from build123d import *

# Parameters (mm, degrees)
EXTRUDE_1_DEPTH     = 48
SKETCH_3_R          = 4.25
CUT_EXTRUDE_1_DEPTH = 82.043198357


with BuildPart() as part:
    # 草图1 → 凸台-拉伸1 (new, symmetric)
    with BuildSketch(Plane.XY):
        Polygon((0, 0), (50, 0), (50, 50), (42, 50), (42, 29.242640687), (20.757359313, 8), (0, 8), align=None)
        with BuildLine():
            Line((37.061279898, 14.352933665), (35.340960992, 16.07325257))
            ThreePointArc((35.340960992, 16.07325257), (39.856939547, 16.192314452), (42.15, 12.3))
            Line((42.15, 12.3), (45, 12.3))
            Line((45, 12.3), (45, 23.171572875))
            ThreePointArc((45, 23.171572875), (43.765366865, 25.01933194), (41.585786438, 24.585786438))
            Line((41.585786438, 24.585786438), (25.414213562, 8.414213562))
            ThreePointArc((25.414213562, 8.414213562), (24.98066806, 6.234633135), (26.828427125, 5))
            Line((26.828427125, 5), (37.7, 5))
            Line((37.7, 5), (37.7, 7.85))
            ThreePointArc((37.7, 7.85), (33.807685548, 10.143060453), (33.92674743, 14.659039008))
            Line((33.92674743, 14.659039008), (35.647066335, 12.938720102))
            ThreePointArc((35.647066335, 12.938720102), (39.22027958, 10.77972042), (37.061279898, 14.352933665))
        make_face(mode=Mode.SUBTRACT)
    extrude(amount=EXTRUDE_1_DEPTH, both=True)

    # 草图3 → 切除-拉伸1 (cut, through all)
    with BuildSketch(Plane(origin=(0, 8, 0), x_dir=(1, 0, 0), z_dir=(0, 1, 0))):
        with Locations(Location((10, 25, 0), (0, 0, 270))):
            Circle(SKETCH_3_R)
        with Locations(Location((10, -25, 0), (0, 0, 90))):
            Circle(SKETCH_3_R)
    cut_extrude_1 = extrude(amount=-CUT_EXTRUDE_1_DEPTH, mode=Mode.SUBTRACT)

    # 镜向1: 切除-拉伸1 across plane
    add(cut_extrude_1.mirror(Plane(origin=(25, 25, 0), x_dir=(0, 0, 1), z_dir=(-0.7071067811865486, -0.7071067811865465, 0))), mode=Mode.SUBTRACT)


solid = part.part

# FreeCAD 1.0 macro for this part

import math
import FreeCAD as App
import Part
import Sketcher
Q = App.Units.Quantity

doc = App.newDocument("Part")
params = doc.addObject("Spreadsheet::Sheet", "Params")
for row, (alias, value) in enumerate([
    ("sketch1_radius", "2 mm"),
    ("sketch1_width", "50 mm"),
    ("sketch1_width2", "8 mm"),
    ("sketch1_radius2", "2.15 mm"),
    ("sketch1_radius3", "4.45 mm"),
    ("pad1_length", "96 mm"),
    ("sketch2_diameter", "8.5 mm"),
], start=1):
    params.set(f"A{row}", alias)
    params.set(f"B{row}", "=" + value)
    params.setAlias(f"B{row}", alias)

body = doc.addObject("PartDesign::Body", "Body")

# Sketch on XY plane
sketch1 = doc.addObject("Sketcher::SketchObject", "Sketch")
body.addObject(sketch1)
sketch1.AttachmentSupport = (doc.XY_Plane, [""])
sketch1.MapMode = "FlatFace"
sketch1.addGeometry([
    Part.LineSegment(App.Vector(0, 0, 0), App.Vector(50, 0, 0)),  # 0
    Part.LineSegment(App.Vector(50, 0, 0), App.Vector(50, 50, 0)),  # 1
    Part.LineSegment(App.Vector(50, 50, 0), App.Vector(42, 50, 0)),  # 2
    Part.LineSegment(App.Vector(42, 50, 0), App.Vector(42, 29.2, 0)),  # 3
    Part.LineSegment(App.Vector(42, 29.2, 0), App.Vector(20.8, 8, 0)),  # 4
    Part.LineSegment(App.Vector(20.8, 8, 0), App.Vector(0, 8, 0)),  # 5
    Part.LineSegment(App.Vector(0, 8, 0), App.Vector(0, 0, 0)),  # 6
    Part.LineSegment(App.Vector(35.3, 16.1, 0), App.Vector(37.1, 14.4, 0)),  # 7
    Part.ArcOfCircle(Part.Circle(App.Vector(37.7, 12.3, 0), App.Vector(0, 0, 1), 2.1), math.radians(163), math.radians(467)),  # 8
    Part.LineSegment(App.Vector(35.6, 12.9, 0), App.Vector(33.9, 14.7, 0)),  # 9
    Part.ArcOfCircle(Part.Circle(App.Vector(37.7, 12.3, 0), App.Vector(0, 0, 1), 4.5), math.radians(148), math.radians(270)),  # 10
    Part.LineSegment(App.Vector(37.7, 7.8, 0), App.Vector(37.7, 5, 0)),  # 11
    Part.LineSegment(App.Vector(37.7, 5, 0), App.Vector(26.8, 5, 0)),  # 12
    Part.ArcOfCircle(Part.Circle(App.Vector(26.8, 7, 0), App.Vector(0, 0, 1), 2), math.radians(135), math.radians(270)),  # 13
    Part.LineSegment(App.Vector(25.4, 8.4, 0), App.Vector(41.6, 24.6, 0)),  # 14
    Part.ArcOfCircle(Part.Circle(App.Vector(43, 23.2, 0), App.Vector(0, 0, 1), 2), math.radians(0), math.radians(135)),  # 15
    Part.LineSegment(App.Vector(45, 23.2, 0), App.Vector(45, 12.3, 0)),  # 16
    Part.LineSegment(App.Vector(45, 12.3, 0), App.Vector(42.1, 12.3, 0)),  # 17
    Part.ArcOfCircle(Part.Circle(App.Vector(37.7, 12.3, 0), App.Vector(0, 0, 1), 4.5), math.radians(0), math.radians(122)),  # 18
], False)
sketch1.addConstraint([
    Sketcher.Constraint("Coincident", 0, 2, 1, 1),
    Sketcher.Constraint("Coincident", 1, 2, 2, 1),
    Sketcher.Constraint("Coincident", 2, 2, 3, 1),
    Sketcher.Constraint("Coincident", 3, 2, 4, 1),
    Sketcher.Constraint("Coincident", 4, 2, 5, 1),
    Sketcher.Constraint("Coincident", 5, 2, 6, 1),
    Sketcher.Constraint("Coincident", 6, 2, 0, 1),
    Sketcher.Constraint("Coincident", 7, 2, 8, 2),
    Sketcher.Constraint("Coincident", 8, 1, 9, 1),
    Sketcher.Constraint("Coincident", 9, 2, 10, 1),
    Sketcher.Constraint("Coincident", 10, 2, 11, 1),
    Sketcher.Constraint("Coincident", 11, 2, 12, 1),
    Sketcher.Constraint("Tangent", 12, 2, 13, 2),
    Sketcher.Constraint("Tangent", 13, 1, 14, 1),
    Sketcher.Constraint("Tangent", 14, 2, 15, 2),
    Sketcher.Constraint("Tangent", 15, 1, 16, 1),
    Sketcher.Constraint("Coincident", 16, 2, 17, 1),
    Sketcher.Constraint("Coincident", 17, 2, 18, 1),
    Sketcher.Constraint("Coincident", 18, 2, 7, 1),
    Sketcher.Constraint("Horizontal", 0),
    Sketcher.Constraint("Vertical", 1),
    Sketcher.Constraint("Horizontal", 2),
    Sketcher.Constraint("Vertical", 3),
    Sketcher.Constraint("Horizontal", 5),
    Sketcher.Constraint("Vertical", 6),
    Sketcher.Constraint("Vertical", 11),
    Sketcher.Constraint("Horizontal", 12),
    Sketcher.Constraint("Vertical", 16),
    Sketcher.Constraint("Horizontal", 17),
    Sketcher.Constraint("Coincident", 6, 2, -1, 1),
    Sketcher.Constraint("Coincident", 10, 3, 8, 3),
    Sketcher.Constraint("Coincident", 18, 3, 8, 3),
    Sketcher.Constraint("Equal", 13, 15),
    Sketcher.Constraint("Equal", 10, 18),
    Sketcher.Constraint("Perpendicular", 4, 7),
    Sketcher.Constraint("Parallel", 7, 9),
    Sketcher.Constraint("Perpendicular", 9, 14),
    Sketcher.Constraint("Horizontal", 18, 3, 16, 2),
    Sketcher.Constraint("Vertical", 18, 3, 10, 2),
    Sketcher.Constraint("Equal", 0, 1),
    Sketcher.Constraint("Equal", 5, 3),
    Sketcher.Constraint("Equal", 2, 6),
    Sketcher.Constraint("Equal", 17, 11),
    Sketcher.Constraint("Equal", 7, 9),
    Sketcher.Constraint("Radius", 13, Q("2 mm")),
    Sketcher.Constraint("DistanceX", 0, 1, 0, 2, Q("50 mm")),
    Sketcher.Constraint("DistanceX", 2, 2, 2, 1, Q("8 mm")),
    Sketcher.Constraint("Radius", 8, Q("2.15 mm")),
    Sketcher.Constraint("Radius", 10, Q("4.45 mm")),
    Sketcher.Constraint("DistanceY", -1, 1, 13, 3, Q("7 mm")),
    Sketcher.Constraint("DistanceX", -1, 1, 15, 3, Q("43 mm")),
    Sketcher.Constraint("DistanceX", 17, 2, 17, 1, Q("2.85 mm")),
    Sketcher.Constraint("Distance", 7, Q("2.432898 mm")),
    Sketcher.Constraint("DistanceX", 5, 2, 5, 1, Q("20.757359 mm")),
    Sketcher.Constraint("DistanceX", 12, 2, 12, 1, Q("10.871573 mm")),
])
sketch1.setExpression("Constraints[44]", "Params.sketch1_radius")
sketch1.setExpression("Constraints[45]", "Params.sketch1_width")
sketch1.setExpression("Constraints[46]", "Params.sketch1_width2")
sketch1.setExpression("Constraints[47]", "Params.sketch1_radius2")
sketch1.setExpression("Constraints[48]", "Params.sketch1_radius3")
pad1 = doc.addObject("PartDesign::Pad", "Pad")
body.addObject(pad1)
pad1.Profile = sketch1
pad1.setExpression("Length", "Params.pad1_length")
pad1.Midplane = True

# Sketch on XZ plane
sketch2 = doc.addObject("Sketcher::SketchObject", "Sketch001")
body.addObject(sketch2)
sketch2.AttachmentSupport = (doc.XZ_Plane, [""])
sketch2.MapMode = "FlatFace"
sketch2.AttachmentOffset = App.Placement(App.Vector(0, 0, -8), App.Rotation())
sketch2.addGeometry([
    Part.Circle(App.Vector(10, -25, 0), App.Vector(0, 0, 1), 4.2),
    Part.Circle(App.Vector(10, 25, 0), App.Vector(0, 0, 1), 4.2),
], False)
sketch2.addConstraint([
    Sketcher.Constraint("Equal", 0, 1),
    Sketcher.Constraint("Symmetric", 0, 3, 1, 3, -1),
    Sketcher.Constraint("Diameter", 0, Q("8.5 mm")),
    Sketcher.Constraint("DistanceX", -1, 1, 0, 3, Q("10 mm")),
    Sketcher.Constraint("DistanceY", 0, 3, -1, 1, Q("25 mm")),
])
sketch2.setExpression("Constraints[2]", "Params.sketch2_diameter")
pocket1 = doc.addObject("PartDesign::Pocket", "Pocket")
body.addObject(pocket1)
pocket1.Profile = sketch2
pocket1.Type = "ThroughAll"
pocket1.Reversed = True
doc.recompute()

datumplane = doc.addObject("PartDesign::Plane", "DatumPlane")
body.addObject(datumplane)
datumplane.Placement = App.Placement(App.Vector(25, 25, 0), App.Rotation(App.Vector(-0.707106781, 0.707106781, 0), App.Vector(0, 0, -1), App.Vector(-0.707106781, -0.707106781, 0), "ZXY"))
mirrored = doc.addObject("PartDesign::Mirrored", "Mirrored")
body.addObject(mirrored)
mirrored.Originals = [pocket1]
mirrored.MirrorPlane = (datumplane, [""])
body.Tip = mirrored

doc.recompute()
